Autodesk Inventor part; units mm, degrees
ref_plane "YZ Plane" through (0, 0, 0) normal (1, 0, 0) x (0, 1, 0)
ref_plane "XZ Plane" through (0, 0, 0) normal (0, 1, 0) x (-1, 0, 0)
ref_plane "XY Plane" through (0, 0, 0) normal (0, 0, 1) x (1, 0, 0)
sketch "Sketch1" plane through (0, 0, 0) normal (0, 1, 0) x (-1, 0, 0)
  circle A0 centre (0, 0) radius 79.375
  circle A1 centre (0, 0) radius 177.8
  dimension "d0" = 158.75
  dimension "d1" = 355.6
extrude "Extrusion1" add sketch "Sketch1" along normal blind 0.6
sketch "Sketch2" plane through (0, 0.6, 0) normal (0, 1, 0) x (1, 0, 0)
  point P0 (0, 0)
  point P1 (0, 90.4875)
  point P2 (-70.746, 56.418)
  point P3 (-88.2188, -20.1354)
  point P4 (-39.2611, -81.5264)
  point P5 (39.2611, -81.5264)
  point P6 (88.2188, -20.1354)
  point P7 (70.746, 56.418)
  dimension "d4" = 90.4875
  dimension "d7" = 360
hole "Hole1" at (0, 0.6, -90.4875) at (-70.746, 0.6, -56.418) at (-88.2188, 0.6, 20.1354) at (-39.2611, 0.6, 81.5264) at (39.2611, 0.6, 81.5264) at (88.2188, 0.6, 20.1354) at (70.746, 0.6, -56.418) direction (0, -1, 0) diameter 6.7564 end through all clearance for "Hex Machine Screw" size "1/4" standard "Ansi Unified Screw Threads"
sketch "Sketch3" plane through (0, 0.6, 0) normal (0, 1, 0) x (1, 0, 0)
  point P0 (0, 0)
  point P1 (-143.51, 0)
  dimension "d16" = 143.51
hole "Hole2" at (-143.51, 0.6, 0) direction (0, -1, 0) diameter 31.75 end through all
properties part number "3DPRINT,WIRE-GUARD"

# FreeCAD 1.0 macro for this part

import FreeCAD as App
import Part
import Sketcher
from FreeCAD import Vector
Q = App.Units.Quantity

doc = App.newDocument("Part")
params = doc.addObject("Spreadsheet::Sheet", "Params")
for row, (alias, value) in enumerate([
    ("sketch1_diameter", "14 in"),
    ("sketch1_diameter2", "6.25 in"),
    ("pad1_length", "0.6 mm"),
    ("sketch2_diameter", "0.266 in"),
    ("hole_diameter", "0.266 in"),
    ("sketch3_diameter", "1.25 in"),
    ("hole2_diameter", "1.25 in"),
], start=1):
    params.set(f"A{row}", alias)
    params.set(f"B{row}", "=" + value)
    params.setAlias(f"B{row}", alias)

body = doc.addObject("PartDesign::Body", "Body")

sketch1 = body.newObject("Sketcher::SketchObject", "Sketch")
sketch1.AttachmentSupport = (doc.getObject("XZ_Plane"), [""])
sketch1.MapMode = "FlatFace"
sketch1.addGeometry([
    Part.Circle(Vector(0, 0, 0), Vector(0, 0, 1), 178),
    Part.Circle(Vector(0, 0, 0), Vector(0, 0, 1), 79),
], False)
sketch1.addConstraint([
    Sketcher.Constraint("Coincident", 0, 3, -1, 1),
    Sketcher.Constraint("Coincident", 1, 3, -1, 1),
    Sketcher.Constraint("Diameter", 0, Q("14 in")),
    Sketcher.Constraint("Diameter", 1, Q("6.25 in")),
])
sketch1.setExpression("Constraints[2]", "Params.sketch1_diameter")
sketch1.setExpression("Constraints[3]", "Params.sketch1_diameter2")
pad1 = body.newObject("PartDesign::Pad", "Pad")
pad1.Profile = sketch1
pad1.setExpression("Length", "Params.pad1_length")
pad1.Reversed = True

sketch2 = body.newObject("Sketcher::SketchObject", "Sketch001")
sketch2.AttachmentSupport = (doc.getObject("XZ_Plane"), [""])
sketch2.MapMode = "FlatFace"
sketch2.AttachmentOffset = App.Placement(Vector(0, 0, -0.6), App.Rotation())
sketch2.addGeometry([
    Part.Circle(Vector(0, -90.5, 0), Vector(0, 0, 1), 3.4),
    Part.Circle(Vector(-70.7, -56.4, 0), Vector(0, 0, 1), 3.4),
    Part.Circle(Vector(-88.2, 20.1, 0), Vector(0, 0, 1), 3.4),
    Part.Circle(Vector(-39.3, 81.5, 0), Vector(0, 0, 1), 3.4),
    Part.Circle(Vector(39.3, 81.5, 0), Vector(0, 0, 1), 3.4),
    Part.Circle(Vector(88.2, 20.1, 0), Vector(0, 0, 1), 3.4),
    Part.Circle(Vector(70.7, -56.4, 0), Vector(0, 0, 1), 3.4),
], False)
sketch2.addConstraint([
    Sketcher.Constraint("Equal", 0, 1),
    Sketcher.Constraint("Equal", 1, 2),
    Sketcher.Constraint("Equal", 2, 3),
    Sketcher.Constraint("Equal", 3, 4),
    Sketcher.Constraint("Equal", 4, 5),
    Sketcher.Constraint("Equal", 5, 6),
    Sketcher.Constraint("Symmetric", 3, 3, 4, 3, -2),
    Sketcher.Constraint("Symmetric", 2, 3, 5, 3, -2),
    Sketcher.Constraint("Symmetric", 1, 3, 6, 3, -2),
    Sketcher.Constraint("PointOnObject", 0, 3, -2),
    Sketcher.Constraint("Diameter", 0, Q("0.266 in")),
    Sketcher.Constraint("DistanceY", 0, 3, -1, 1, Q("3.5625 in")),
    Sketcher.Constraint("DistanceX", 1, 3, 4, 3, Q("4.331 in")),
    Sketcher.Constraint("DistanceY", -1, 1, 3, 3, Q("3.2097 in")),
    Sketcher.Constraint("DistanceX", 2, 3, 1, 3, Q("0.6879 in")),
    Sketcher.Constraint("DistanceX", 1, 3, -1, 1, 70.746),
    Sketcher.Constraint("DistanceY", 1, 3, -1, 1, 56.418),
    Sketcher.Constraint("DistanceY", -1, 1, 2, 3, 20.1354),
])
sketch2.setExpression("Constraints[10]", "Params.sketch2_diameter")
doc.recompute()
hole = body.newObject("PartDesign::Hole", "Hole")
hole.Profile = sketch2
hole.ThreadType = "None"
hole.setExpression("Diameter", "Params.hole_diameter")
hole.DepthType = "ThroughAll"
hole.Reversed = True

sketch3 = body.newObject("Sketcher::SketchObject", "Sketch002")
sketch3.AttachmentSupport = (doc.getObject("XZ_Plane"), [""])
sketch3.MapMode = "FlatFace"
sketch3.AttachmentOffset = App.Placement(Vector(0, 0, -0.6), App.Rotation())
sketch3.addGeometry(Part.Circle(Vector(-144, 0, 0), Vector(0, 0, 1), 16), False)
sketch3.addConstraint([
    Sketcher.Constraint("PointOnObject", 0, 3, -1),
    Sketcher.Constraint("Diameter", 0, Q("1.25 in")),
    Sketcher.Constraint("DistanceX", 0, 3, -1, 1, Q("5.65 in")),
])
sketch3.setExpression("Constraints[1]", "Params.sketch3_diameter")
doc.recompute()
hole2 = body.newObject("PartDesign::Hole", "Hole001")
hole2.Profile = sketch3
hole2.ThreadType = "None"
hole2.setExpression("Diameter", "Params.hole2_diameter")
hole2.DepthType = "ThroughAll"
hole2.Reversed = True

doc.recompute()
